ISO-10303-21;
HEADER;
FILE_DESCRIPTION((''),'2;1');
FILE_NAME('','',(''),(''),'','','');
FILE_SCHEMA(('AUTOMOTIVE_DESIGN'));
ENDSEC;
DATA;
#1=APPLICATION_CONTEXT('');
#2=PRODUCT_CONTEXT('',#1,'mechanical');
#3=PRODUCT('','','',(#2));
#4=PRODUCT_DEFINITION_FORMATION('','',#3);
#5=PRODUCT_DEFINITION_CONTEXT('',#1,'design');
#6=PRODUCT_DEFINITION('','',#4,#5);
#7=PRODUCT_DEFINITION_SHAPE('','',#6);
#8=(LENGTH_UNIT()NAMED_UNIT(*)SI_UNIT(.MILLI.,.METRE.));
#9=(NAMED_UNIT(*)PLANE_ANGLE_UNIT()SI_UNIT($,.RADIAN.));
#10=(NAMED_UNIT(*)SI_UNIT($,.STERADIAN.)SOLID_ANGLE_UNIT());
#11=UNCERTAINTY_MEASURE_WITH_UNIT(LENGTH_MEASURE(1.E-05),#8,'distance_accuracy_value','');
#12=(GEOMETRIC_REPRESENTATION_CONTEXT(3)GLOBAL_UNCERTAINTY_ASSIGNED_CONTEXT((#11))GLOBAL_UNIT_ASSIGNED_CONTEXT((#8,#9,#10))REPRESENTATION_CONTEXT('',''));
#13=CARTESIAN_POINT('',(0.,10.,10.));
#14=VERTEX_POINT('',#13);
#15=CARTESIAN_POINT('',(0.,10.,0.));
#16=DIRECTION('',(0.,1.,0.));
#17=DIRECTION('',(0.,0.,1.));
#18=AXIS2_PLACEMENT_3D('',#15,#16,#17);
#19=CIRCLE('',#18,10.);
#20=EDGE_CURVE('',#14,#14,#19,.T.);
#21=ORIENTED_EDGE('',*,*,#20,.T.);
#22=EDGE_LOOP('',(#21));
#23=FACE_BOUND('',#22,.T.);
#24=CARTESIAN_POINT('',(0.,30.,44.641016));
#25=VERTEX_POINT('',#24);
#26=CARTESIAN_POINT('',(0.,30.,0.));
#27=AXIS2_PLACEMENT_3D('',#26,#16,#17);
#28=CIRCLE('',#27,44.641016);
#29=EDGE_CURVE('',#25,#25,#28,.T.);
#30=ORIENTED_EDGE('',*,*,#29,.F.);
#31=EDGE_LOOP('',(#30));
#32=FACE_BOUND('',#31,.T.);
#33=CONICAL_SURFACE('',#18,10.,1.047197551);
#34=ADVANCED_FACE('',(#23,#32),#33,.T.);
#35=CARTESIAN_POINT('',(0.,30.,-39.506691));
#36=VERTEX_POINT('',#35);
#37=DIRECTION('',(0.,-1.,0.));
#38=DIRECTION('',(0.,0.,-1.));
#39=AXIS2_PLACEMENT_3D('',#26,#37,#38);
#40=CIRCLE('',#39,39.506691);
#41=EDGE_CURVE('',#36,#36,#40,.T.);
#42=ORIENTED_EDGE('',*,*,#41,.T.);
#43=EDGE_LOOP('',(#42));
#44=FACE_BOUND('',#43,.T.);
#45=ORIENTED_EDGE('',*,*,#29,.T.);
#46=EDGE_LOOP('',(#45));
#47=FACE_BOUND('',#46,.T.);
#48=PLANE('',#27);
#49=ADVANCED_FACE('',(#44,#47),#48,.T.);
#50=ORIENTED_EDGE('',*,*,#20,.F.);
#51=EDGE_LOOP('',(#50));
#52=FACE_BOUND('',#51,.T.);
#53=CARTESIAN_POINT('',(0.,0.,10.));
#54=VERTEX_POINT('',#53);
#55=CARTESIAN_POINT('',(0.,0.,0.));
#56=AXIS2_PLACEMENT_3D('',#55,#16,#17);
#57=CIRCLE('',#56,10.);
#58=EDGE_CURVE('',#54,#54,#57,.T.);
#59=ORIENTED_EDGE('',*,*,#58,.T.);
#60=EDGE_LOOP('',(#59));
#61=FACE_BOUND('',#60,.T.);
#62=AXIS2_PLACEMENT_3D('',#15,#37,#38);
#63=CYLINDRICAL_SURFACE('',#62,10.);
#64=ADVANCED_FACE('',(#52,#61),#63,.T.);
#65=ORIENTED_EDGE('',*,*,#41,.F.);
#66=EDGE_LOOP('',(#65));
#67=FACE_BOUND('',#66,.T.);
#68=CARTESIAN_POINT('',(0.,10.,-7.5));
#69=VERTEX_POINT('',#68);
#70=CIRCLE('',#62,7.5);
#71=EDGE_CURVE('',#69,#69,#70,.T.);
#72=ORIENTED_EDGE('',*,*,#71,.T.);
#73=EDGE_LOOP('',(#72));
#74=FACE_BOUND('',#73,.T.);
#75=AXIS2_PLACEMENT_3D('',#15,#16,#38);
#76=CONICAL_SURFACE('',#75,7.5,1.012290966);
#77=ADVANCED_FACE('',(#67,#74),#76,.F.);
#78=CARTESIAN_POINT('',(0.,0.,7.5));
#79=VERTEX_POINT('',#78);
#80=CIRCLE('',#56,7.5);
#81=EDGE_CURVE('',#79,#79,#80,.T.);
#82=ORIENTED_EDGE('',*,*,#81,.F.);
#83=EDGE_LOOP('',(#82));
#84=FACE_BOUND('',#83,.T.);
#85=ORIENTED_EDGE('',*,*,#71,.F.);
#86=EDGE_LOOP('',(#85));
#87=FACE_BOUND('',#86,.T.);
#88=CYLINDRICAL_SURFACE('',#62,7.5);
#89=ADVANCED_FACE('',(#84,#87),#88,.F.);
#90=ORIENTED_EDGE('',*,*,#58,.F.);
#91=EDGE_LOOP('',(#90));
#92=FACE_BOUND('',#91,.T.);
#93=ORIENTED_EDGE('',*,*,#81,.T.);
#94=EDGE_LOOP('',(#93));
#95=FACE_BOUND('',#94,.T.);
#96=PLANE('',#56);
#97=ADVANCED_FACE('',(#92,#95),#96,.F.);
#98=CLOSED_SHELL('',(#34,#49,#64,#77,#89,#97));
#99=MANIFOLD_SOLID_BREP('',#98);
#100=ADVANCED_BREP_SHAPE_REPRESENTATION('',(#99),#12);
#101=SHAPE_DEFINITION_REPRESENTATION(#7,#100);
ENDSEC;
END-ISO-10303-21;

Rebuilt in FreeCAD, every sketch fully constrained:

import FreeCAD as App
import Part
import Sketcher
from FreeCAD import Vector

doc = App.newDocument("Part")
body = doc.addObject("PartDesign::Body", "Body")

# Sketch on XZ plane
sketch1 = doc.addObject("Sketcher::SketchObject", "Sketch")
body.addObject(sketch1)
sketch1.AttachmentSupport = (doc.XZ_Plane, [""])
sketch1.MapMode = "FlatFace"
sketch1.addGeometry([
    Part.Circle(Vector(0, 0, 0), Vector(0, 0, 1), 10),
    Part.Circle(Vector(0, 0, 0), Vector(0, 0, 1), 7.5),
], False)
sketch1.addConstraint([
    Sketcher.Constraint("Coincident", 0, 3, -1, 1),
    Sketcher.Constraint("Coincident", 1, 3, -1, 1),
    Sketcher.Constraint("Diameter", 0, 20.0),
    Sketcher.Constraint("Diameter", 1, 15.0),
])
pad1 = doc.addObject("PartDesign::Pad", "Pad")
body.addObject(pad1)
pad1.Profile = sketch1
pad1.Length = 10
pad1.Reversed = True

# Sketch on XZ plane
sketch2 = doc.addObject("Sketcher::SketchObject", "Sketch001")
body.addObject(sketch2)
sketch2.AttachmentSupport = (doc.XZ_Plane, [""])
sketch2.MapMode = "FlatFace"
sketch2.AttachmentOffset = App.Placement(Vector(0, 0, -10), App.Rotation())
sketch2.addGeometry(Part.Circle(Vector(0, 0, 0), Vector(0, 0, 1), 10), False)
sketch2.addConstraint([
    Sketcher.Constraint("Coincident", 0, 3, -1, 1),
    Sketcher.Constraint("Diameter", 0, 20.0),
])
pad2 = doc.addObject("PartDesign::Pad", "Pad001")
body.addObject(pad2)
pad2.Profile = sketch2
pad2.Length = 20
pad2.Reversed = True
pad2.TaperAngle = 60

# Sketch on XZ plane
sketch3 = doc.addObject("Sketcher::SketchObject", "Sketch002")
body.addObject(sketch3)
sketch3.AttachmentSupport = (doc.XZ_Plane, [""])
sketch3.MapMode = "FlatFace"
sketch3.AttachmentOffset = App.Placement(Vector(0, 0, -10), App.Rotation())
sketch3.addGeometry(Part.Circle(Vector(0, 0, 0), Vector(0, 0, 1), 7.5), False)
sketch3.addConstraint([
    Sketcher.Constraint("Coincident", 0, 3, -1, 1),
    Sketcher.Constraint("Diameter", 0, 15.0),
])
pocket1 = doc.addObject("PartDesign::Pocket", "Pocket")
body.addObject(pocket1)
pocket1.Profile = sketch3
pocket1.Length = 20
pocket1.TaperAngle = 58

doc.recompute()
